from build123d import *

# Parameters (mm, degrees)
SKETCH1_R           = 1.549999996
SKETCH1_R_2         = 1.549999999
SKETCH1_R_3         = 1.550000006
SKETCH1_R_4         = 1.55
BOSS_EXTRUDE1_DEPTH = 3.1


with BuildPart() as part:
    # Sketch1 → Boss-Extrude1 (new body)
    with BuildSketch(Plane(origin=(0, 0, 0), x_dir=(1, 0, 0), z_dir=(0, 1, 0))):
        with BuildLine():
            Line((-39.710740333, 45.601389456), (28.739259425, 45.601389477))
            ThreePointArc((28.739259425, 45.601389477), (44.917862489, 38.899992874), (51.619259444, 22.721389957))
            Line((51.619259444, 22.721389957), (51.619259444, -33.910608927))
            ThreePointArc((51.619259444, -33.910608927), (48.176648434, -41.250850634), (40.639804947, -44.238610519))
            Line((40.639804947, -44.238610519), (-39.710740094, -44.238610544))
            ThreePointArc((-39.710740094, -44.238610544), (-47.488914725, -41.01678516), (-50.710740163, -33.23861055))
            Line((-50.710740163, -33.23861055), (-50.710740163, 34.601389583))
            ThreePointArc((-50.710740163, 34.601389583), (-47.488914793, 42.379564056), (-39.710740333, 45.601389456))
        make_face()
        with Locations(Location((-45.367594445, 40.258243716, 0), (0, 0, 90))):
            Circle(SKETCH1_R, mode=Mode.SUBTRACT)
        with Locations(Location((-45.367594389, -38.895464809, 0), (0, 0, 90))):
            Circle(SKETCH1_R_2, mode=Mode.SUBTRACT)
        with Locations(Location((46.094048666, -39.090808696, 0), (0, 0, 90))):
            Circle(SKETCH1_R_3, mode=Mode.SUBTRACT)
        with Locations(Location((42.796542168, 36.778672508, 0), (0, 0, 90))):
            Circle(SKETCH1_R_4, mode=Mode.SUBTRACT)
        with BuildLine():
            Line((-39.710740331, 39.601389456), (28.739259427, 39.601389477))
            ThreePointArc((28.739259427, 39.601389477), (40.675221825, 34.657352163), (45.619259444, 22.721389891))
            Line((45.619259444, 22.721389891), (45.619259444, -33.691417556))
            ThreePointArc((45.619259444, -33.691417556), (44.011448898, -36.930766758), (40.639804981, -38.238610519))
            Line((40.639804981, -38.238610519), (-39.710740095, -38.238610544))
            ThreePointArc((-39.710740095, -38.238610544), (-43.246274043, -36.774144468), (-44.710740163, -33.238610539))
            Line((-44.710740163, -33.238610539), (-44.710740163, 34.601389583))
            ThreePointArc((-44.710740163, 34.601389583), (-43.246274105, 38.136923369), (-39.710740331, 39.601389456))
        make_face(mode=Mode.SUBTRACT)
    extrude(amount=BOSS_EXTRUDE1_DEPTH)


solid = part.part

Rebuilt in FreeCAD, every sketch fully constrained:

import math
import FreeCAD as App
import Part
import Sketcher
Q = App.Units.Quantity

doc = App.newDocument("Part")
params = doc.addObject("Spreadsheet::Sheet", "Params")
for row, (alias, value) in enumerate([
    ("sketch1_radius", "11 mm"),
    ("sketch1_radius2", "5 mm"),
    ("sketch1_diameter", "3.1 mm"),
    ("sketch1_radius3", "22.88 mm"),
    ("sketch1_width", "68.45 mm"),
    ("pad1_length", "3.1 mm"),
], start=1):
    params.set(f"A{row}", alias)
    params.set(f"B{row}", "=" + value)
    params.setAlias(f"B{row}", alias)

body = doc.addObject("PartDesign::Body", "Body")

sketch1 = body.newObject("Sketcher::SketchObject", "Sketch")
sketch1.AttachmentSupport = (doc.getObject("XZ_Plane"), [""])
sketch1.MapMode = "FlatFace"
sketch1.addGeometry([
    Part.LineSegment(App.Vector(28.7, -45.6, 0), App.Vector(-39.7, -45.6, 0)),
    Part.ArcOfCircle(Part.Circle(App.Vector(-39.7, -34.6, 0), App.Vector(0, 0, 1), 11), math.radians(-180), math.radians(-90)),
    Part.LineSegment(App.Vector(-50.7, -34.6, 0), App.Vector(-50.7, 33.2, 0)),
    Part.ArcOfCircle(Part.Circle(App.Vector(-39.7, 33.2, 0), App.Vector(0, 0, 1), 11), math.radians(90), math.radians(180)),
    Part.LineSegment(App.Vector(-39.7, 44.2, 0), App.Vector(40.6, 44.2, 0)),
    Part.ArcOfCircle(Part.Circle(App.Vector(40.6, 33.2, 0), App.Vector(0, 0, 1), 11), math.radians(4), math.radians(90)),
    Part.LineSegment(App.Vector(51.6, 33.9, 0), App.Vector(51.6, -22.7, 0)),
    Part.ArcOfCircle(Part.Circle(App.Vector(28.7, -22.7, 0), App.Vector(0, 0, 1), 22.9), math.radians(-90), math.radians(0)),
    Part.Circle(App.Vector(46.1, 39.1, 0), App.Vector(0, 0, 1), 1.6),
    Part.Circle(App.Vector(-45.4, 38.9, 0), App.Vector(0, 0, 1), 1.5),
    Part.LineSegment(App.Vector(-39.7, -39.6, 0), App.Vector(28.7, -39.6, 0)),
    Part.ArcOfCircle(Part.Circle(App.Vector(28.7, -22.7, 0), App.Vector(0, 0, 1), 16.9), math.radians(-90), math.radians(0)),
    Part.LineSegment(App.Vector(45.6, -22.7, 0), App.Vector(45.6, 33.7, 0)),
    Part.ArcOfCircle(Part.Circle(App.Vector(40.6, 33.2, 0), App.Vector(0, 0, 1), 5), math.radians(5), math.radians(90)),
    Part.LineSegment(App.Vector(40.6, 38.2, 0), App.Vector(-39.7, 38.2, 0)),
    Part.ArcOfCircle(Part.Circle(App.Vector(-39.7, 33.2, 0), App.Vector(0, 0, 1), 5), math.radians(90), math.radians(180)),
    Part.LineSegment(App.Vector(-44.7, 33.2, 0), App.Vector(-44.7, -34.6, 0)),
    Part.ArcOfCircle(Part.Circle(App.Vector(-39.7, -34.6, 0), App.Vector(0, 0, 1), 5), math.radians(-180), math.radians(-90)),
    Part.Circle(App.Vector(42.8, -36.8, 0), App.Vector(0, 0, 1), 1.6),
    Part.Circle(App.Vector(-45.4, -40.3, 0), App.Vector(0, 0, 1), 1.5),
], False)
sketch1.addConstraint([
    Sketcher.Constraint("Tangent", 0, 2, 1, 2),
    Sketcher.Constraint("Tangent", 1, 1, 2, 1),
    Sketcher.Constraint("Tangent", 2, 2, 3, 2),
    Sketcher.Constraint("Tangent", 3, 1, 4, 1),
    Sketcher.Constraint("Tangent", 4, 2, 5, 2),
    Sketcher.Constraint("Coincident", 5, 1, 6, 1),
    Sketcher.Constraint("Tangent", 6, 2, 7, 2),
    Sketcher.Constraint("Tangent", 7, 1, 0, 1),
    Sketcher.Constraint("Tangent", 10, 2, 11, 1),
    Sketcher.Constraint("Tangent", 11, 2, 12, 1),
    Sketcher.Constraint("Coincident", 12, 2, 13, 1),
    Sketcher.Constraint("Tangent", 13, 2, 14, 1),
    Sketcher.Constraint("Tangent", 14, 2, 15, 1),
    Sketcher.Constraint("Tangent", 15, 2, 16, 1),
    Sketcher.Constraint("Tangent", 16, 2, 17, 1),
    Sketcher.Constraint("Tangent", 17, 2, 10, 1),
    Sketcher.Constraint("Horizontal", 0),
    Sketcher.Constraint("Vertical", 2),
    Sketcher.Constraint("Horizontal", 4),
    Sketcher.Constraint("Vertical", 6),
    Sketcher.Constraint("Horizontal", 10),
    Sketcher.Constraint("Vertical", 12),
    Sketcher.Constraint("Horizontal", 14),
    Sketcher.Constraint("Vertical", 16),
    Sketcher.Constraint("Coincident", 11, 3, 7, 3),
    Sketcher.Constraint("Coincident", 13, 3, 5, 3),
    Sketcher.Constraint("Coincident", 15, 3, 3, 3),
    Sketcher.Constraint("Coincident", 17, 3, 1, 3),
    Sketcher.Constraint("Equal", 1, 3),
    Sketcher.Constraint("Equal", 3, 5),
    Sketcher.Constraint("Equal", 8, 9),
    Sketcher.Constraint("Equal", 9, 18),
    Sketcher.Constraint("Equal", 18, 19),
    Sketcher.Constraint("Vertical", 9, 3, 19, 3),
    Sketcher.Constraint("Radius", 1, Q("11 mm")),
    Sketcher.Constraint("Radius", 13, Q("5 mm")),
    Sketcher.Constraint("Diameter", 8, Q("3.1 mm")),
    Sketcher.Constraint("Radius", 7, Q("22.88 mm")),
    Sketcher.Constraint("DistanceX", 0, 2, 0, 1, Q("68.45 mm")),
    Sketcher.Constraint("DistanceY", 2, 1, 2, 2, Q("67.84 mm")),
    Sketcher.Constraint("DistanceY", 6, 2, 6, 1, Q("56.631999 mm")),
    Sketcher.Constraint("DistanceY", 5, 3, 8, 3, Q("5.852198 mm")),
    Sketcher.Constraint("DistanceX", 9, 3, 5, 3, Q("86.007399 mm")),
    Sketcher.Constraint("DistanceX", 1, 3, -1, 1, Q("39.71074 mm")),
    Sketcher.Constraint("DistanceY", 1, 3, -1, 1, Q("34.60139 mm")),
    Sketcher.Constraint("DistanceX", -1, 1, 8, 3, Q("46.094049 mm")),
    Sketcher.Constraint("DistanceY", 18, 3, 8, 3, Q("75.869481 mm")),
    Sketcher.Constraint("DistanceY", -1, 1, 9, 3, Q("38.895465 mm")),
    Sketcher.Constraint("DistanceX", -1, 1, 18, 3, Q("42.796542 mm")),
    Sketcher.Constraint("DistanceY", 19, 3, -1, 1, Q("40.258244 mm")),
])
sketch1.setExpression("Constraints[34]", "Params.sketch1_radius")
sketch1.setExpression("Constraints[35]", "Params.sketch1_radius2")
sketch1.setExpression("Constraints[36]", "Params.sketch1_diameter")
sketch1.setExpression("Constraints[37]", "Params.sketch1_radius3")
sketch1.setExpression("Constraints[38]", "Params.sketch1_width")
pad1 = body.newObject("PartDesign::Pad", "Pad")
pad1.Profile = sketch1
pad1.setExpression("Length", "Params.pad1_length")
pad1.Reversed = True

doc.recompute()
